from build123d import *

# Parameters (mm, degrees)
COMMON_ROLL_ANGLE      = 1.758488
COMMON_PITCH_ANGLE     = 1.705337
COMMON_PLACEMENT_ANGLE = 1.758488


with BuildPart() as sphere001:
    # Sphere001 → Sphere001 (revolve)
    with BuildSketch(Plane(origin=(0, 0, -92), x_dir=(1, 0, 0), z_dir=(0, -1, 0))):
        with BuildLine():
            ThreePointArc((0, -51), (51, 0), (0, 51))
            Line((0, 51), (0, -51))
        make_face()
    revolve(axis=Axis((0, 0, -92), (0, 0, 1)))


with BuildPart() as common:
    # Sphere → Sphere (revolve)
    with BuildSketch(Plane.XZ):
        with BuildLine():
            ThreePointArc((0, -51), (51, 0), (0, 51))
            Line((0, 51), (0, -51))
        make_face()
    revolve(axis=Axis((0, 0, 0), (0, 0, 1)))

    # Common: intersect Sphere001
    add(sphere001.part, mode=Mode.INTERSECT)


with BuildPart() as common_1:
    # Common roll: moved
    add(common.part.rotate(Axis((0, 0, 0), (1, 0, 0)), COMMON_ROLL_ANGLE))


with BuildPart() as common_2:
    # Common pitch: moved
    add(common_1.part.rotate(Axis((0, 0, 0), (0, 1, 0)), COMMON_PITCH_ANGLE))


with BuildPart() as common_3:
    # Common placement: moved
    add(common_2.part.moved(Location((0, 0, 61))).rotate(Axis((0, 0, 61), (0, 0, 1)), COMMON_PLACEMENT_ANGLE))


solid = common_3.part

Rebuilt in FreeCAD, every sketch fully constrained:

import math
import FreeCAD as App
import Part
import Sketcher

doc = App.newDocument("Part")
params = doc.addObject("Spreadsheet::Sheet", "Params")
for row, (alias, value) in enumerate([
    ("sketch1_radius", "51 mm"),
    ("revolution_angle", "360 deg"),
    ("sketch2_radius", "51 mm"),
    ("revolution2_angle", "360 deg"),
], start=1):
    params.set(f"A{row}", alias)
    params.set(f"B{row}", "=" + value)
    params.setAlias(f"B{row}", alias)

body = doc.addObject("PartDesign::Body", "Body")

sketch1 = body.newObject("Sketcher::SketchObject", "Sketch")
sketch1.AttachmentSupport = (doc.getObject("XZ_Plane"), [""])
sketch1.MapMode = "FlatFace"
sketch1.addGeometry(Part.ArcOfCircle(Part.Circle(App.Vector(0, -92, 0), App.Vector(0, 0, 1), 51), math.radians(-90), math.radians(90)), False)
sketch1.addGeometry(Part.LineSegment(App.Vector(0, -41, 0), App.Vector(0, -143, 0)), False)
sketch1.addConstraint(Sketcher.Constraint("Coincident", 0, 1, 1, 2))
sketch1.addConstraint(Sketcher.Constraint("Coincident", 1, 1, 0, 2))
sketch1.addConstraint(Sketcher.Constraint("Vertical", 1))
sketch1.addConstraint(Sketcher.Constraint("PointOnObject", 0, 3, -2))
sketch1.addConstraint(Sketcher.Constraint("PointOnObject", 0, 1, -2))
sketch1.addConstraint(Sketcher.Constraint("Radius", 0, 51.0))
sketch1.addConstraint(Sketcher.Constraint("DistanceY", 0, 3, -1, 1, 92.0))
sketch1.setExpression("Constraints[5]", "Params.sketch1_radius")
revolution = body.newObject("PartDesign::Revolution", "Revolution")
revolution.Profile = sketch1
revolution.ReferenceAxis = (sketch1, ["V_Axis"])
revolution.setExpression("Angle", "Params.revolution_angle")
body2 = doc.addObject("PartDesign::Body", "Body001")

sketch2 = body2.newObject("Sketcher::SketchObject", "Sketch001")
sketch2.AttachmentSupport = (doc.getObject("XZ_Plane001"), [""])
sketch2.MapMode = "FlatFace"
sketch2.addGeometry(Part.ArcOfCircle(Part.Circle(App.Vector(0, 0, 0), App.Vector(0, 0, 1), 51), math.radians(-90), math.radians(90)), False)
sketch2.addGeometry(Part.LineSegment(App.Vector(0, 51, 0), App.Vector(0, -51, 0)), False)
sketch2.addConstraint(Sketcher.Constraint("Coincident", 0, 1, 1, 2))
sketch2.addConstraint(Sketcher.Constraint("Coincident", 1, 1, 0, 2))
sketch2.addConstraint(Sketcher.Constraint("Vertical", 1))
sketch2.addConstraint(Sketcher.Constraint("Coincident", 0, 3, -1, 1))
sketch2.addConstraint(Sketcher.Constraint("PointOnObject", 0, 1, -2))
sketch2.addConstraint(Sketcher.Constraint("Radius", 0, 51.0))
sketch2.setExpression("Constraints[5]", "Params.sketch2_radius")
revolution2 = body2.newObject("PartDesign::Revolution", "Revolution001")
revolution2.Profile = sketch2
revolution2.ReferenceAxis = (sketch2, ["V_Axis"])
revolution2.setExpression("Angle", "Params.revolution2_angle")
doc.recompute()

boolean = body2.newObject("PartDesign::Boolean", "Boolean")
boolean.Type = "Common"
boolean.addObjects([body])
body3 = doc.addObject("PartDesign::Body", "Body002")
doc.recompute()

body2.Placement = App.Placement(App.Vector(0, 0, 0), App.Rotation(App.Vector(1, 0, 0), 1.758488))
boolean2 = body3.newObject("PartDesign::Boolean", "Boolean001")
boolean2.Type = "Fuse"
boolean2.addObjects([body2])
body4 = doc.addObject("PartDesign::Body", "Body003")
doc.recompute()

body3.Placement = App.Placement(App.Vector(0, 0, 0), App.Rotation(App.Vector(0, 1, 0), 1.705337))
boolean3 = body4.newObject("PartDesign::Boolean", "Boolean002")
boolean3.Type = "Fuse"
boolean3.addObjects([body3])
body5 = doc.addObject("PartDesign::Body", "Body004")
doc.recompute()

body4.Placement = App.Placement(App.Vector(0, 0, 61), App.Rotation(App.Vector(0, 0, 1), 1.758488))
boolean4 = body5.newObject("PartDesign::Boolean", "Boolean003")
boolean4.Type = "Fuse"
boolean4.addObjects([body4])

doc.recompute()
